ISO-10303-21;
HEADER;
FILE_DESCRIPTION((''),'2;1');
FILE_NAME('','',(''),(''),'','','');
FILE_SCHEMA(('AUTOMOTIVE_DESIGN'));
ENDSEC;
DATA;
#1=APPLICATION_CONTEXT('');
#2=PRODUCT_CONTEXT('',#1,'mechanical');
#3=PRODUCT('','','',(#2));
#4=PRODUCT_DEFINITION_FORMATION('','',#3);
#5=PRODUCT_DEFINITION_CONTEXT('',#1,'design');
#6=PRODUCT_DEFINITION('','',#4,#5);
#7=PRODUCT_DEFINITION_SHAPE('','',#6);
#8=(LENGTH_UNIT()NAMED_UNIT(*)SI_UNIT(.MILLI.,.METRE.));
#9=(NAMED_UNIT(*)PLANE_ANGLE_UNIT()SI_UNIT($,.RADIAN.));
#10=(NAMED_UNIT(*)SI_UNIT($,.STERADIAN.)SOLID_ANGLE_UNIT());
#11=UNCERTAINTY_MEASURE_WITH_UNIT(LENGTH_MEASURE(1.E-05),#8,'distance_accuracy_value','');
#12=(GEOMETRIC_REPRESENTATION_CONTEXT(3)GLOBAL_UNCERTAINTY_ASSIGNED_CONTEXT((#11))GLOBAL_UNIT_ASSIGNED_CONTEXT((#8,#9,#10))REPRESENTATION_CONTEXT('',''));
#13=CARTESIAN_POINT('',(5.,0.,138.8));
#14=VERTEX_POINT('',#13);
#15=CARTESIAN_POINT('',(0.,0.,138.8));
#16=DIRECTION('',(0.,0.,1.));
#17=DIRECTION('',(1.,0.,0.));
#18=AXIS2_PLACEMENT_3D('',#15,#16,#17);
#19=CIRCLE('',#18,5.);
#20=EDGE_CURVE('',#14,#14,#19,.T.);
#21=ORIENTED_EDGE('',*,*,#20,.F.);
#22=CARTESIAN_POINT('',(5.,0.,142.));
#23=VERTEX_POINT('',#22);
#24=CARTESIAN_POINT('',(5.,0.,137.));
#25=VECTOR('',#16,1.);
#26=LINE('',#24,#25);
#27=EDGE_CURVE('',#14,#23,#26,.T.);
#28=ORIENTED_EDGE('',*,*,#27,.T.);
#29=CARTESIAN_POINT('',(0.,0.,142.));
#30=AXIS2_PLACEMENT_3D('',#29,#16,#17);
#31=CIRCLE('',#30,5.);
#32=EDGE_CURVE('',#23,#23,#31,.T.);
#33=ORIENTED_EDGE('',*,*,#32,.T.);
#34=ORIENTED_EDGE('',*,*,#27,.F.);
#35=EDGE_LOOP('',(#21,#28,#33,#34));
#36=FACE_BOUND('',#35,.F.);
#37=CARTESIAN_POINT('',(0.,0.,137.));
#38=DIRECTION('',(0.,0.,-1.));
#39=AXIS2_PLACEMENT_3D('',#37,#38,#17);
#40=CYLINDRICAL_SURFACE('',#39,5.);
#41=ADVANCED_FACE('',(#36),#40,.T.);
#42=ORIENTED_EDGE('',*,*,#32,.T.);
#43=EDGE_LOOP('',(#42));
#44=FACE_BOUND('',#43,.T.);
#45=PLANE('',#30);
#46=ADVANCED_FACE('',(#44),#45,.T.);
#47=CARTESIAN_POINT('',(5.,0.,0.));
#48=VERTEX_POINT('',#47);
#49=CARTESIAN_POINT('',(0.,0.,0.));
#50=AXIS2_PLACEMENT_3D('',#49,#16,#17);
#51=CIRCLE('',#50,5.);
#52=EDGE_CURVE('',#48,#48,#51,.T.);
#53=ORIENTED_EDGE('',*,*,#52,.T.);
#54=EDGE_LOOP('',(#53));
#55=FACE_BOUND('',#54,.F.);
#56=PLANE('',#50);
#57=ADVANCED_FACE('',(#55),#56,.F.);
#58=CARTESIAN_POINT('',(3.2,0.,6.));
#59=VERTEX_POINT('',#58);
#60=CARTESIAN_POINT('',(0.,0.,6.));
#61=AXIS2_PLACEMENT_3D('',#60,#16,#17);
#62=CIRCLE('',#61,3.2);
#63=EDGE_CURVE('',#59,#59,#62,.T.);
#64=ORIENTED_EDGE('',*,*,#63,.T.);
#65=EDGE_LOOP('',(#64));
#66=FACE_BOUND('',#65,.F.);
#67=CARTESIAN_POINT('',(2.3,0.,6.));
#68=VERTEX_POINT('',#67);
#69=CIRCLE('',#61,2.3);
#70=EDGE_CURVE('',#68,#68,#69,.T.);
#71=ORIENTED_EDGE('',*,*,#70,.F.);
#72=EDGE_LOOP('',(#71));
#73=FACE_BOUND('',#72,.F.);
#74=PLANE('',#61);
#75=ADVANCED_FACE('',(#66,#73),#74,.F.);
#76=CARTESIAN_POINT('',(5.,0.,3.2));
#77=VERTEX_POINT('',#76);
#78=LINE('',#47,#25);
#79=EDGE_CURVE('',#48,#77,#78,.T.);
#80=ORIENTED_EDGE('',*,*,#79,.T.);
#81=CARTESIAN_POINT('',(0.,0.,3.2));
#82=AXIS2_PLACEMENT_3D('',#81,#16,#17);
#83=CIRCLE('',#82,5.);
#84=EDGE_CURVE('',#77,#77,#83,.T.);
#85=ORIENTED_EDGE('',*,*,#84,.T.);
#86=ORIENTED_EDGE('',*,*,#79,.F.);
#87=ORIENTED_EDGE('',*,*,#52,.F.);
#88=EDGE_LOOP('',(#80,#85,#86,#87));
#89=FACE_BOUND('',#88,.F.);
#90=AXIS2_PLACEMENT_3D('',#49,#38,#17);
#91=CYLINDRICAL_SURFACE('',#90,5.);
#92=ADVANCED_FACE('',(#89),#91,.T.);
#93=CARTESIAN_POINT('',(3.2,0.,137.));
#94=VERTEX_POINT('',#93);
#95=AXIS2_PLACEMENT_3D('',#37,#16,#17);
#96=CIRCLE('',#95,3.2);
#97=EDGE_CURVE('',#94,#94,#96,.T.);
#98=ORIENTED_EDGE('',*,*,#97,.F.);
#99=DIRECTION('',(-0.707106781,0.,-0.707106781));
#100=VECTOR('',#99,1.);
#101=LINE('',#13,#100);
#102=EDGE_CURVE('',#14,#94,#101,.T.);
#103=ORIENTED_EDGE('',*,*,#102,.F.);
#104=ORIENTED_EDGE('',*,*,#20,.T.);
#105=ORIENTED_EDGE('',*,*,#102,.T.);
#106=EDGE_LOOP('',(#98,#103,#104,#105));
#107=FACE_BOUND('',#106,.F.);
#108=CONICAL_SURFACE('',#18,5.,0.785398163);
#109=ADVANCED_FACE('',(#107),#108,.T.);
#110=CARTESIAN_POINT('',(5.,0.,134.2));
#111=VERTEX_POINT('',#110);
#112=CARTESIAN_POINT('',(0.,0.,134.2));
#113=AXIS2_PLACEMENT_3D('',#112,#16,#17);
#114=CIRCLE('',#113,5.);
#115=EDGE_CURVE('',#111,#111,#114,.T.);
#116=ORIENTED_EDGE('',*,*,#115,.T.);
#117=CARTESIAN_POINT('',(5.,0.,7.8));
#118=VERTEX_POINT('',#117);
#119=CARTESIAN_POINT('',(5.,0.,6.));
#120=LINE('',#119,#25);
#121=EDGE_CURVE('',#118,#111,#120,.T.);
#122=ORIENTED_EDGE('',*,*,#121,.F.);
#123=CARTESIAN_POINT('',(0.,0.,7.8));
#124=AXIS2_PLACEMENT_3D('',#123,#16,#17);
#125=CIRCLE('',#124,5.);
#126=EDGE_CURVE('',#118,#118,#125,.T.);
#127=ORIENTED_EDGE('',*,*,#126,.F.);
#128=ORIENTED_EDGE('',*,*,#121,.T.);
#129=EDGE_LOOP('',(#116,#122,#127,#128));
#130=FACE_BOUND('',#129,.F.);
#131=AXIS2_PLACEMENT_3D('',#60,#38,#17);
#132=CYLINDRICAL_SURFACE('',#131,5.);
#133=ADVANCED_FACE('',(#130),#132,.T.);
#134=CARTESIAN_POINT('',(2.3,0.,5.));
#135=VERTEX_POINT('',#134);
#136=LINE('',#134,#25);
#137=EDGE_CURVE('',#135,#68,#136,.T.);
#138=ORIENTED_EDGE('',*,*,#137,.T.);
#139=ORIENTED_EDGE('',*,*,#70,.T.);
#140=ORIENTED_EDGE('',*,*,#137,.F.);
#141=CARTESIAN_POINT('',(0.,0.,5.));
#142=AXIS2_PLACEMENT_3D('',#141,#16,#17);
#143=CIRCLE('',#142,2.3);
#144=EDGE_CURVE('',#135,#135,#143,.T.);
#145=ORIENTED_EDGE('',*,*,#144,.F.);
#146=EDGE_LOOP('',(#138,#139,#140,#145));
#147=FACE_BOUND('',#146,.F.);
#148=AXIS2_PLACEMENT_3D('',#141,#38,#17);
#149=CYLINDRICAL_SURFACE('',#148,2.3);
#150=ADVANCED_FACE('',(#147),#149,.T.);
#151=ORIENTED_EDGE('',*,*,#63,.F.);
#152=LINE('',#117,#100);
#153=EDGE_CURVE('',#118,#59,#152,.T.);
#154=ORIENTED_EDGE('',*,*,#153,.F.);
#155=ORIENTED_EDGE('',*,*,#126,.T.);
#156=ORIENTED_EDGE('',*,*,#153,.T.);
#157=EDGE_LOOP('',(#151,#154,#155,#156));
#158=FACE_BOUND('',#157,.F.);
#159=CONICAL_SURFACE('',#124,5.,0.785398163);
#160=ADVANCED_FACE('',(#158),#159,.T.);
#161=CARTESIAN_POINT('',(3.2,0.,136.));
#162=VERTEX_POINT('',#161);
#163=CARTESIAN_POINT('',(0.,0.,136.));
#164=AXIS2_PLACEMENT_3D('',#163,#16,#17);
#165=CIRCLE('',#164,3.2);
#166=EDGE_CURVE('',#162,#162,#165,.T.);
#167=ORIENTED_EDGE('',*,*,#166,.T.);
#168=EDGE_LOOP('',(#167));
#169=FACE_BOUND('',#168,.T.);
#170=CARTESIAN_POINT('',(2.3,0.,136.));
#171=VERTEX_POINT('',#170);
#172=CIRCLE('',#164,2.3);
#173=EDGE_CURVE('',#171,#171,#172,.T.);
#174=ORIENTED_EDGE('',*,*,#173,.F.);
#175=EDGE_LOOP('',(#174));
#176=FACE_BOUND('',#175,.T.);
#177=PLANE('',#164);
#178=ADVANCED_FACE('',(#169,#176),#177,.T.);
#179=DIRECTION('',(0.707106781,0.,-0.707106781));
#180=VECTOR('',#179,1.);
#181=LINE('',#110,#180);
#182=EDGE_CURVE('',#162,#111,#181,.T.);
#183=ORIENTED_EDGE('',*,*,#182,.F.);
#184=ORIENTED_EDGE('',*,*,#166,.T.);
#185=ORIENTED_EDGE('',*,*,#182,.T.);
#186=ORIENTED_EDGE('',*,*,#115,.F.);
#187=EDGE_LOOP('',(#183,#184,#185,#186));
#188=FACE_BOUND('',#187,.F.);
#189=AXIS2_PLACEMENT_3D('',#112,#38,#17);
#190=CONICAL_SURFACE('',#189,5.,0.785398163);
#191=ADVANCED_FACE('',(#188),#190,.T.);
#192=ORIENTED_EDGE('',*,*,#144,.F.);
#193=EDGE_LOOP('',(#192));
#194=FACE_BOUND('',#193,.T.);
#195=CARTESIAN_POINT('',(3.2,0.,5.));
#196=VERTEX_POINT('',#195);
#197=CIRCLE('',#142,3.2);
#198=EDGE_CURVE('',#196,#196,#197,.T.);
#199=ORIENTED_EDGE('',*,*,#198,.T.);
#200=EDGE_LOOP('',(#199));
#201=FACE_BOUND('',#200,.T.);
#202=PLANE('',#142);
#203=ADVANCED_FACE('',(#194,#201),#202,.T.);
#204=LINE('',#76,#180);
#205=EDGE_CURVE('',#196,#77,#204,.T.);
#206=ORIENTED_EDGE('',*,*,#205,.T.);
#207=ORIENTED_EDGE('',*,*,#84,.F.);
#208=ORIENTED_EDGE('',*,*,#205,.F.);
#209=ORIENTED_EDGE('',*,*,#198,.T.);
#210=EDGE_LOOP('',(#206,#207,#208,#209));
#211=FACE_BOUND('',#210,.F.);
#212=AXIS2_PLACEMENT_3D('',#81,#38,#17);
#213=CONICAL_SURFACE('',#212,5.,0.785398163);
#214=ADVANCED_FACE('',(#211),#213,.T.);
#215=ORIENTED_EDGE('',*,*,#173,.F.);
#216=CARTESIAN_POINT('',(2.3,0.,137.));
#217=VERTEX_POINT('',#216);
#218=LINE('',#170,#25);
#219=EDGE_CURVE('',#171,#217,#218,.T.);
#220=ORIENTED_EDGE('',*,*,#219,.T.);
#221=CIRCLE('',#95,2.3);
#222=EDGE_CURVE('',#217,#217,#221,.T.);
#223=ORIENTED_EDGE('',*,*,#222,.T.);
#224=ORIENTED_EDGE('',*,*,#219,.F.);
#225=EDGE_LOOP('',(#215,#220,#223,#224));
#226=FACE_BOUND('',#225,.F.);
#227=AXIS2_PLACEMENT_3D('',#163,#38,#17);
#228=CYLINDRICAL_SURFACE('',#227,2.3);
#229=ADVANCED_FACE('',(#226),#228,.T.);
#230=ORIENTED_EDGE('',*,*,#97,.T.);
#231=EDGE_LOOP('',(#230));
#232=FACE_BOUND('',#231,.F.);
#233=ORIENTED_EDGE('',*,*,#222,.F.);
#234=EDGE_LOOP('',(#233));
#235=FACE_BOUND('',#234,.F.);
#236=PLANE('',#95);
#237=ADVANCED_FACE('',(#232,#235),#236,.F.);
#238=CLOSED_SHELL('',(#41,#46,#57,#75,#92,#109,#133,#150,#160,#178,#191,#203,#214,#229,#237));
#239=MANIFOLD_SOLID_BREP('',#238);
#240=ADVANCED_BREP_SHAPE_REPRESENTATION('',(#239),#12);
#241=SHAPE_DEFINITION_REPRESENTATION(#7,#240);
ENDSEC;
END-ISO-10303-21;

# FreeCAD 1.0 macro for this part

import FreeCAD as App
import Part
import Sketcher
from FreeCAD import Vector


def edges_at(feature, points):
    """Names of the edges that pass closest to the given points."""
    edges = feature.Shape.Edges
    near = lambda p: min(range(len(edges)), key=lambda i: edges[i].distToShape(Part.Vertex(*p))[0])
    return sorted({f"Edge{near(p) + 1}" for p in points})

doc = App.newDocument("Part")
body = doc.addObject("PartDesign::Body", "Body")

# Sketch on XY plane
sketch1 = body.newObject("Sketcher::SketchObject", "Sketch")
sketch1.AttachmentSupport = (doc.getObject("XY_Plane"), [""])
sketch1.MapMode = "FlatFace"
sketch1.addGeometry(Part.Circle(Vector(0, 0, 0), Vector(0, 0, 1), 5), False)
sketch1.addConstraint(Sketcher.Constraint("Coincident", 0, 3, -1, 1))
sketch1.addConstraint(Sketcher.Constraint("Diameter", 0, 10.0))
pad1 = body.newObject("PartDesign::Pad", "Pad")
pad1.Profile = sketch1
pad1.Length = 5

# Sketch on XY plane
sketch2 = body.newObject("Sketcher::SketchObject", "Sketch001")
sketch2.AttachmentSupport = (doc.getObject("XY_Plane"), [""])
sketch2.MapMode = "FlatFace"
sketch2.AttachmentOffset = App.Placement(Vector(0, 0, 5), App.Rotation())
sketch2.addGeometry(Part.Circle(Vector(0, 0, 0), Vector(0, 0, 1), 2.3), False)
sketch2.addConstraint(Sketcher.Constraint("Coincident", 0, 3, -1, 1))
sketch2.addConstraint(Sketcher.Constraint("Diameter", 0, 4.6))
pad2 = body.newObject("PartDesign::Pad", "Pad001")
pad2.Profile = sketch2
pad2.Length = 1

# Sketch on XY plane
sketch3 = body.newObject("Sketcher::SketchObject", "Sketch002")
sketch3.AttachmentSupport = (doc.getObject("XY_Plane"), [""])
sketch3.MapMode = "FlatFace"
sketch3.AttachmentOffset = App.Placement(Vector(0, 0, 6), App.Rotation())
sketch3.addGeometry(Part.Circle(Vector(0, 0, 0), Vector(0, 0, 1), 5), False)
sketch3.addConstraint(Sketcher.Constraint("Coincident", 0, 3, -1, 1))
sketch3.addConstraint(Sketcher.Constraint("Diameter", 0, 10.0))
pad3 = body.newObject("PartDesign::Pad", "Pad002")
pad3.Profile = sketch3
pad3.Length = 130

# Sketch on XY plane
sketch4 = body.newObject("Sketcher::SketchObject", "Sketch003")
sketch4.AttachmentSupport = (doc.getObject("XY_Plane"), [""])
sketch4.MapMode = "FlatFace"
sketch4.AttachmentOffset = App.Placement(Vector(0, 0, 136), App.Rotation())
sketch4.addGeometry(Part.Circle(Vector(0, 0, 0), Vector(0, 0, 1), 2.3), False)
sketch4.addConstraint(Sketcher.Constraint("Coincident", 0, 3, -1, 1))
sketch4.addConstraint(Sketcher.Constraint("Diameter", 0, 4.6))
pad4 = body.newObject("PartDesign::Pad", "Pad003")
pad4.Profile = sketch4
pad4.Length = 1

# Sketch on XY plane
sketch5 = body.newObject("Sketcher::SketchObject", "Sketch004")
sketch5.AttachmentSupport = (doc.getObject("XY_Plane"), [""])
sketch5.MapMode = "FlatFace"
sketch5.AttachmentOffset = App.Placement(Vector(0, 0, 137), App.Rotation())
sketch5.addGeometry(Part.Circle(Vector(0, 0, 0), Vector(0, 0, 1), 5), False)
sketch5.addConstraint(Sketcher.Constraint("Coincident", 0, 3, -1, 1))
sketch5.addConstraint(Sketcher.Constraint("Diameter", 0, 10.0))
pad5 = body.newObject("PartDesign::Pad", "Pad004")
pad5.Profile = sketch5
pad5.Length = 5
doc.recompute()

chamfer = body.newObject("PartDesign::Chamfer", "Chamfer")
chamfer.Base = (pad5, edges_at(pad5, [
    (-5, 0, 136),
    (-5, 0, 137),
    (-5, 0, 6),
    (-5, 0, 5),
]))
chamfer.Size = 1.8

doc.recompute()
